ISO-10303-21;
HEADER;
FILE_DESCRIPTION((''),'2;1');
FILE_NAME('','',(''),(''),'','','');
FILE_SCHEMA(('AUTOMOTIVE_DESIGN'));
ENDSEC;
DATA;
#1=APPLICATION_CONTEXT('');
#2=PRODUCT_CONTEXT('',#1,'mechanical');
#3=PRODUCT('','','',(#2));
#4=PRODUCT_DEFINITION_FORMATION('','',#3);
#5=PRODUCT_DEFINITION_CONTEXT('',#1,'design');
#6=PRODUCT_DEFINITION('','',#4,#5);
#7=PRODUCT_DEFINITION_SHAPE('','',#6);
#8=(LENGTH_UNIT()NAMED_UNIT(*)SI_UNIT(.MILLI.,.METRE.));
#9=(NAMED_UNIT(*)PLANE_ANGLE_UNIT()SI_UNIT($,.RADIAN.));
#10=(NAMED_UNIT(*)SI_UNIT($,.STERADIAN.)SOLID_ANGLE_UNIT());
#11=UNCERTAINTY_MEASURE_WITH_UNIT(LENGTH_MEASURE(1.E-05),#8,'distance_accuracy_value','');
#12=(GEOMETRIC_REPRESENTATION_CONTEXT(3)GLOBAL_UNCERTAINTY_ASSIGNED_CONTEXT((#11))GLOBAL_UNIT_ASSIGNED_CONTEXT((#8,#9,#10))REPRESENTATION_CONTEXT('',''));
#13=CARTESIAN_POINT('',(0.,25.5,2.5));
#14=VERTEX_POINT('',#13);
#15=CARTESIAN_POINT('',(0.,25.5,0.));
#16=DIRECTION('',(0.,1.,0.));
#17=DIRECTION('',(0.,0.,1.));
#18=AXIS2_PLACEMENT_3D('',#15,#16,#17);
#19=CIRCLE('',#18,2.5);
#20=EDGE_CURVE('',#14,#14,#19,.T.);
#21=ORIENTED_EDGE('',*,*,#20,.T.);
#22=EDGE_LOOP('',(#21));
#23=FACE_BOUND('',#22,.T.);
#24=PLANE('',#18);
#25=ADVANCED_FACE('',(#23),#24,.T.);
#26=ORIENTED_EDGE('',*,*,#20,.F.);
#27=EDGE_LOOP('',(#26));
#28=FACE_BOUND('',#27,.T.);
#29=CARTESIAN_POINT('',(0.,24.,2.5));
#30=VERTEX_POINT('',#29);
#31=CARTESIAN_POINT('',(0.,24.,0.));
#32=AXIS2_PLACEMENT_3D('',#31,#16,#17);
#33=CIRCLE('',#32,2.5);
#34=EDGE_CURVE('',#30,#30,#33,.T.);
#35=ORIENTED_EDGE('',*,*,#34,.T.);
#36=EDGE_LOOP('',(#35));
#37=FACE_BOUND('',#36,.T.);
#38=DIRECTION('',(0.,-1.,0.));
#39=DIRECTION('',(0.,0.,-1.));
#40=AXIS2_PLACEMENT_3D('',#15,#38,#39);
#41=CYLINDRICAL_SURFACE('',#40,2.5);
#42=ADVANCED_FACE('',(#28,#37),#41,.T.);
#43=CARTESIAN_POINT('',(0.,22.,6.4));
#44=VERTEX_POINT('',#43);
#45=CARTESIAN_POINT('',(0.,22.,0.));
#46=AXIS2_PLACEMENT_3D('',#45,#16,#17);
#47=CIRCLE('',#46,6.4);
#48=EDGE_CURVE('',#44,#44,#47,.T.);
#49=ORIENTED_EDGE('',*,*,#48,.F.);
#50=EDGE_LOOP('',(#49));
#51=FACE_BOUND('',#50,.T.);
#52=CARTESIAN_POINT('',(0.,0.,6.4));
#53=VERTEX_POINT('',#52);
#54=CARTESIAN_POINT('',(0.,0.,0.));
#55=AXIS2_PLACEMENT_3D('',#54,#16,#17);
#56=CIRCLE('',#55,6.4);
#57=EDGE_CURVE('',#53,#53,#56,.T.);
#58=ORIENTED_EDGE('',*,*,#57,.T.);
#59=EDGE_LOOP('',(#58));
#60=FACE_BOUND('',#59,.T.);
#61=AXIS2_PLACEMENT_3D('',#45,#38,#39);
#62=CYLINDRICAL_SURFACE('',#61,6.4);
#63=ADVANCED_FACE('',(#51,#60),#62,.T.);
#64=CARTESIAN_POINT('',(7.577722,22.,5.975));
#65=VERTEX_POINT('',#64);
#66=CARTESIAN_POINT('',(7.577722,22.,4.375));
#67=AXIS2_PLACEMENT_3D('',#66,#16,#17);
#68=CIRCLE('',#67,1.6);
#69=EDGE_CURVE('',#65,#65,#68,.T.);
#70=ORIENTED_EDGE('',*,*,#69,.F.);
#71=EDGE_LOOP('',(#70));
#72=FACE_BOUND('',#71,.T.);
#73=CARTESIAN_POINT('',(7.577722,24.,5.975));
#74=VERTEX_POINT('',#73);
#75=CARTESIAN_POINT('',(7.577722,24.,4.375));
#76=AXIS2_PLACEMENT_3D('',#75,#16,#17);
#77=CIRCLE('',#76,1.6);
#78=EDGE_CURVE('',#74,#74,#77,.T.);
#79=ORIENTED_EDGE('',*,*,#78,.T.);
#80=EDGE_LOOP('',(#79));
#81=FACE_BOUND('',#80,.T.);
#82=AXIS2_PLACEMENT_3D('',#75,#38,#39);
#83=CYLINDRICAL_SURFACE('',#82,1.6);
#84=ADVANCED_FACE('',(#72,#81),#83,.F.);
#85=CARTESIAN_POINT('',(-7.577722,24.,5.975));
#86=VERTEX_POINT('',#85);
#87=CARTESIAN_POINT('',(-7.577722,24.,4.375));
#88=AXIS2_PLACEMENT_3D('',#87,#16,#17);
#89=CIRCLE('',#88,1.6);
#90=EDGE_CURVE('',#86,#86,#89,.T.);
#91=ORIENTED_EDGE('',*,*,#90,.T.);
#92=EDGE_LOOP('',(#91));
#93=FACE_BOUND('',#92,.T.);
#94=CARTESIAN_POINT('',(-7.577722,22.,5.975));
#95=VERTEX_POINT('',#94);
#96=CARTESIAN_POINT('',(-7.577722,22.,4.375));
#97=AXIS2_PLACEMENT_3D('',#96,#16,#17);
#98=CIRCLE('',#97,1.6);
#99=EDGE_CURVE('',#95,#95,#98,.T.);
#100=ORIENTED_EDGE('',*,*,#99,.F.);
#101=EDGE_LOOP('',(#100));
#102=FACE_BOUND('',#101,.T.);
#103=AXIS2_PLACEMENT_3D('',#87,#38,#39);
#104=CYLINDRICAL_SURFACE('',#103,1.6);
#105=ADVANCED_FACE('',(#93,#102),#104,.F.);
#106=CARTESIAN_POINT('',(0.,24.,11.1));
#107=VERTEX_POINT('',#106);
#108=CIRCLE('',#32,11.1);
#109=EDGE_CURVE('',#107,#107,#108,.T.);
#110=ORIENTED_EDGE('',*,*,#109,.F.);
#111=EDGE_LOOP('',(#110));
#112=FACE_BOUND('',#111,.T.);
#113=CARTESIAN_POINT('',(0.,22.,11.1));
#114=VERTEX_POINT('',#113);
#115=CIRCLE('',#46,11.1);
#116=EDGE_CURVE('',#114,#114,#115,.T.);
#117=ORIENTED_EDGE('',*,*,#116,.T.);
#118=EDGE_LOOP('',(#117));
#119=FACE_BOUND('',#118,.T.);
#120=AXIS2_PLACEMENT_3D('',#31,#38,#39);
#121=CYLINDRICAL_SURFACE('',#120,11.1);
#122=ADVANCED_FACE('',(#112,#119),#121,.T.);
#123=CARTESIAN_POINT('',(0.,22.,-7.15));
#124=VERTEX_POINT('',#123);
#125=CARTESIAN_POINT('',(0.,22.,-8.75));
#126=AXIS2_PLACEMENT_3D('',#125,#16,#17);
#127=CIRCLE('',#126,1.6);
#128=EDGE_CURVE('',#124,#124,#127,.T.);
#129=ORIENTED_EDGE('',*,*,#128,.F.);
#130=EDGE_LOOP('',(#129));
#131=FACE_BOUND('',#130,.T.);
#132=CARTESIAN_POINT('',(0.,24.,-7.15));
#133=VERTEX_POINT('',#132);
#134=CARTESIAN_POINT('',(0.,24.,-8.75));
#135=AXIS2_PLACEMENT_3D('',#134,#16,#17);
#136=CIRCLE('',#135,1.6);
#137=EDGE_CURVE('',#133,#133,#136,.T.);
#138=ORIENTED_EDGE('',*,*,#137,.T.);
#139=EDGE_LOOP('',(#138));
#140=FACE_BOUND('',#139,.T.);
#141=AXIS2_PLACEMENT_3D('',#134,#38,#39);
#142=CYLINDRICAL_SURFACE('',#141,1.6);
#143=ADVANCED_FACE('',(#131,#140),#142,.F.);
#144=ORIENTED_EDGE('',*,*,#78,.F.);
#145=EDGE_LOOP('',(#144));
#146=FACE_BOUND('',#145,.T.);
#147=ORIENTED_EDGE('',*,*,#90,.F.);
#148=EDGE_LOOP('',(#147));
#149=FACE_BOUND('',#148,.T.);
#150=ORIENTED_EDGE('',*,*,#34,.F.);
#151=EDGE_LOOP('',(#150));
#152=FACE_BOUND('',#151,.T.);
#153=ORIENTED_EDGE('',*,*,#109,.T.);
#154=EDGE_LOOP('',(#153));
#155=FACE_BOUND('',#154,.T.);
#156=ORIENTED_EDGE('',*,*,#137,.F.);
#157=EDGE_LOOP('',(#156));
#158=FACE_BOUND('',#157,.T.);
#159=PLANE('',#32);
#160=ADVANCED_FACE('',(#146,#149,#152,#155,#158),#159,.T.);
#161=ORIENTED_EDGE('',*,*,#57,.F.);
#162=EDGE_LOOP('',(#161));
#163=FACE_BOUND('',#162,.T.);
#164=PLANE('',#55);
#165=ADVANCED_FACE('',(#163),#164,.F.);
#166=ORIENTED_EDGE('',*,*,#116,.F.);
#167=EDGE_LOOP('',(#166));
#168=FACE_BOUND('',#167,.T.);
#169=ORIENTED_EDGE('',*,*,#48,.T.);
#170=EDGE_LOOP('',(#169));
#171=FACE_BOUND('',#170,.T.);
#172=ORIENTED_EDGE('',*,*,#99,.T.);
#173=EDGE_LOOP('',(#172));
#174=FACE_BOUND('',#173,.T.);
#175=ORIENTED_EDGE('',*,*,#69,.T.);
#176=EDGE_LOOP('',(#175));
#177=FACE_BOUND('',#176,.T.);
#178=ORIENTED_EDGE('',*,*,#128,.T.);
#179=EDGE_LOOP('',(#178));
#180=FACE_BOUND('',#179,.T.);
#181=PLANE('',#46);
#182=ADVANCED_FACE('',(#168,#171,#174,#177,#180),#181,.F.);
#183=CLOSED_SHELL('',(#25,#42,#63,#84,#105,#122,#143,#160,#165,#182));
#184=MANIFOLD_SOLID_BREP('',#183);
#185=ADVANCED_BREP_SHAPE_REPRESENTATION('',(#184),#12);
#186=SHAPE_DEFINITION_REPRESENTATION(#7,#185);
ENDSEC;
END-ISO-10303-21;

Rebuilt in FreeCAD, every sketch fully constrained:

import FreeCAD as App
import Part
import Sketcher

V = App.Vector
Q = App.Units.Quantity

doc = App.newDocument("Part")
body = doc.addObject("PartDesign::Body", "Body")

sketch1 = doc.addObject("Sketcher::SketchObject", "Sketch")
body.addObject(sketch1)
sketch1.AttachmentSupport = (doc.XZ_Plane, [""])
sketch1.MapMode = "FlatFace"
sketch1.addGeometry(Part.Circle(V(0, 0, 0), V(0, 0, 1), 6), False)
sketch1.addConstraint([
    Sketcher.Constraint("Coincident", 0, 3, -1, 1),
    Sketcher.Constraint("Diameter", 0, Q("12.8 mm")),
])
pad1 = doc.addObject("PartDesign::Pad", "Pad")
body.addObject(pad1)
pad1.Profile = sketch1
pad1.Length = 22
pad1.Reversed = True

sketch2 = doc.addObject("Sketcher::SketchObject", "Sketch001")
body.addObject(sketch2)
sketch2.AttachmentSupport = (doc.XZ_Plane, [""])
sketch2.MapMode = "FlatFace"
sketch2.AttachmentOffset = App.Placement(V(0, 0, -22), App.Rotation())
sketch2.addGeometry([
    Part.Circle(V(0, 0, 0), V(0, 0, 1), 11.1),
    Part.Circle(V(0, -8.8, 0), V(0, 0, 1), 1.6),
    Part.Circle(V(-7.6, 4.4, 0), V(0, 0, 1), 1.6),
    Part.Circle(V(7.6, 4.4, 0), V(0, 0, 1), 1.6),
], False)
sketch2.addConstraint([
    Sketcher.Constraint("Coincident", 0, 3, -1, 1),
    Sketcher.Constraint("Equal", 1, 2),
    Sketcher.Constraint("Equal", 2, 3),
    Sketcher.Constraint("Symmetric", 2, 3, 3, 3, -2),
    Sketcher.Constraint("PointOnObject", 1, 3, -2),
    Sketcher.Constraint("Diameter", 0, Q("22.2 mm")),
    Sketcher.Constraint("Diameter", 1, Q("3.2 mm")),
    Sketcher.Constraint("DistanceY", 1, 3, -1, 1, Q("8.75 mm")),
    Sketcher.Constraint("DistanceY", -1, 1, 2, 3, Q("4.375 mm")),
    Sketcher.Constraint("DistanceX", 2, 3, -1, 1, Q("7.577722 mm")),
])
pad2 = doc.addObject("PartDesign::Pad", "Pad001")
body.addObject(pad2)
pad2.Profile = sketch2
pad2.Length = 2
pad2.Reversed = True

sketch3 = doc.addObject("Sketcher::SketchObject", "Sketch002")
body.addObject(sketch3)
sketch3.AttachmentSupport = (doc.XZ_Plane, [""])
sketch3.MapMode = "FlatFace"
sketch3.AttachmentOffset = App.Placement(V(0, 0, -24), App.Rotation())
sketch3.addGeometry(Part.Circle(V(0, 0, 0), V(0, 0, 1), 2.5), False)
sketch3.addConstraint([
    Sketcher.Constraint("Coincident", 0, 3, -1, 1),
    Sketcher.Constraint("Diameter", 0, Q("5 mm")),
])
pad3 = doc.addObject("PartDesign::Pad", "Pad002")
body.addObject(pad3)
pad3.Profile = sketch3
pad3.Length = 1.5
pad3.Reversed = True

doc.recompute()
